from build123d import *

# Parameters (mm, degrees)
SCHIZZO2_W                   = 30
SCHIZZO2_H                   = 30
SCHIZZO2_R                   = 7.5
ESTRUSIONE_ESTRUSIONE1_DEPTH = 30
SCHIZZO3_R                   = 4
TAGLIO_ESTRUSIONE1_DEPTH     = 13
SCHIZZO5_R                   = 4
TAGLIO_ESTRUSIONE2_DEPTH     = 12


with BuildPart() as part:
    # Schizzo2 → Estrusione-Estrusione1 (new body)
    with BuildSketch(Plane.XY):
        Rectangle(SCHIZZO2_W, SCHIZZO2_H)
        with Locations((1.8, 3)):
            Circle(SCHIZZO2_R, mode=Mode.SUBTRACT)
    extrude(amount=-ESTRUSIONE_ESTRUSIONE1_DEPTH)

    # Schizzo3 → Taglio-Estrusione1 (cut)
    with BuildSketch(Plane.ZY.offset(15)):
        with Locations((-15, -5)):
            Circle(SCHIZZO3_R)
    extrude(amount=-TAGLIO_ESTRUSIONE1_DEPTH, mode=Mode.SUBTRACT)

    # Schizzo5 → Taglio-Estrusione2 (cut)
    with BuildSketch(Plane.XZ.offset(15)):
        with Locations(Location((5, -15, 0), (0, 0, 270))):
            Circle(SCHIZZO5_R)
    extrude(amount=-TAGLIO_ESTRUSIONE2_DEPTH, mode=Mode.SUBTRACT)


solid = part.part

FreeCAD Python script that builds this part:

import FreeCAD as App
import Part
import Sketcher

V = App.Vector
Q = App.Units.Quantity


def add_polygon(sketch, points):
    """Adds a closed chain of lines whose ends are joined by coincident constraints."""
    first, n = sketch.GeometryCount, len(points)
    for a, b in zip(points, points[1:] + points[:1]):
        sketch.addGeometry(Part.LineSegment(App.Vector(*a, 0), App.Vector(*b, 0)), False)
    for i in range(n):
        sketch.addConstraint(Sketcher.Constraint("Coincident", first + i, 2, first + (i + 1) % n, 1))

doc = App.newDocument("Part")
body = doc.addObject("PartDesign::Body", "Body")

sketch1 = body.newObject("Sketcher::SketchObject", "Sketch")
sketch1.AttachmentSupport = (doc.getObject("XY_Plane"), [""])
sketch1.MapMode = "FlatFace"
add_polygon(sketch1, [(-15, 15), (-15, -15), (15, -15), (15, 15)])
sketch1.addGeometry(Part.Circle(V(1.8, 3, 0), V(0, 0, 1), 7.5), False)
sketch1.addConstraint([
    Sketcher.Constraint("Vertical", 0),
    Sketcher.Constraint("Horizontal", 1),
    Sketcher.Constraint("Vertical", 2),
    Sketcher.Constraint("Horizontal", 3),
    Sketcher.Constraint("Symmetric", 0, 2, 2, 2, -1, 1),
    Sketcher.Constraint("Equal", 3, 0),
    Sketcher.Constraint("Diameter", 4, Q("15 mm")),
    Sketcher.Constraint("DistanceX", 1, 1, 1, 2, Q("30 mm")),
    Sketcher.Constraint("DistanceY", -1, 1, 4, 3, Q("3 mm")),
    Sketcher.Constraint("DistanceX", -1, 1, 4, 3, Q("1.8 mm")),
])
pad1 = body.newObject("PartDesign::Pad", "Pad")
pad1.Profile = sketch1
pad1.Length = 30
pad1.Reversed = True

sketch2 = body.newObject("Sketcher::SketchObject", "Sketch001")
sketch2.AttachmentSupport = (doc.getObject("YZ_Plane"), [""])
sketch2.MapMode = "FlatFace"
sketch2.AttachmentOffset = App.Placement(V(0, 0, -15), App.Rotation())
sketch2.addGeometry(Part.Circle(V(-5, -15, 0), V(0, 0, 1), 4), False)
sketch2.addConstraint([
    Sketcher.Constraint("Diameter", 0, Q("8 mm")),
    Sketcher.Constraint("DistanceX", 0, 3, -1, 1, Q("5 mm")),
    Sketcher.Constraint("DistanceY", 0, 3, -1, 1, Q("15 mm")),
])
pocket1 = body.newObject("PartDesign::Pocket", "Pocket")
pocket1.Profile = sketch2
pocket1.Length = 13
pocket1.Reversed = True

sketch3 = body.newObject("Sketcher::SketchObject", "Sketch002")
sketch3.AttachmentSupport = (doc.getObject("XZ_Plane"), [""])
sketch3.MapMode = "FlatFace"
sketch3.AttachmentOffset = App.Placement(V(0, 0, 15), App.Rotation())
sketch3.addGeometry(Part.Circle(V(5, -15, 0), V(0, 0, 1), 4), False)
sketch3.addConstraint([
    Sketcher.Constraint("Diameter", 0, Q("8 mm")),
    Sketcher.Constraint("DistanceX", -1, 1, 0, 3, Q("5 mm")),
    Sketcher.Constraint("DistanceY", 0, 3, -1, 1, Q("15 mm")),
])
pocket2 = body.newObject("PartDesign::Pocket", "Pocket001")
pocket2.Profile = sketch3
pocket2.Length = 12

doc.recompute()
